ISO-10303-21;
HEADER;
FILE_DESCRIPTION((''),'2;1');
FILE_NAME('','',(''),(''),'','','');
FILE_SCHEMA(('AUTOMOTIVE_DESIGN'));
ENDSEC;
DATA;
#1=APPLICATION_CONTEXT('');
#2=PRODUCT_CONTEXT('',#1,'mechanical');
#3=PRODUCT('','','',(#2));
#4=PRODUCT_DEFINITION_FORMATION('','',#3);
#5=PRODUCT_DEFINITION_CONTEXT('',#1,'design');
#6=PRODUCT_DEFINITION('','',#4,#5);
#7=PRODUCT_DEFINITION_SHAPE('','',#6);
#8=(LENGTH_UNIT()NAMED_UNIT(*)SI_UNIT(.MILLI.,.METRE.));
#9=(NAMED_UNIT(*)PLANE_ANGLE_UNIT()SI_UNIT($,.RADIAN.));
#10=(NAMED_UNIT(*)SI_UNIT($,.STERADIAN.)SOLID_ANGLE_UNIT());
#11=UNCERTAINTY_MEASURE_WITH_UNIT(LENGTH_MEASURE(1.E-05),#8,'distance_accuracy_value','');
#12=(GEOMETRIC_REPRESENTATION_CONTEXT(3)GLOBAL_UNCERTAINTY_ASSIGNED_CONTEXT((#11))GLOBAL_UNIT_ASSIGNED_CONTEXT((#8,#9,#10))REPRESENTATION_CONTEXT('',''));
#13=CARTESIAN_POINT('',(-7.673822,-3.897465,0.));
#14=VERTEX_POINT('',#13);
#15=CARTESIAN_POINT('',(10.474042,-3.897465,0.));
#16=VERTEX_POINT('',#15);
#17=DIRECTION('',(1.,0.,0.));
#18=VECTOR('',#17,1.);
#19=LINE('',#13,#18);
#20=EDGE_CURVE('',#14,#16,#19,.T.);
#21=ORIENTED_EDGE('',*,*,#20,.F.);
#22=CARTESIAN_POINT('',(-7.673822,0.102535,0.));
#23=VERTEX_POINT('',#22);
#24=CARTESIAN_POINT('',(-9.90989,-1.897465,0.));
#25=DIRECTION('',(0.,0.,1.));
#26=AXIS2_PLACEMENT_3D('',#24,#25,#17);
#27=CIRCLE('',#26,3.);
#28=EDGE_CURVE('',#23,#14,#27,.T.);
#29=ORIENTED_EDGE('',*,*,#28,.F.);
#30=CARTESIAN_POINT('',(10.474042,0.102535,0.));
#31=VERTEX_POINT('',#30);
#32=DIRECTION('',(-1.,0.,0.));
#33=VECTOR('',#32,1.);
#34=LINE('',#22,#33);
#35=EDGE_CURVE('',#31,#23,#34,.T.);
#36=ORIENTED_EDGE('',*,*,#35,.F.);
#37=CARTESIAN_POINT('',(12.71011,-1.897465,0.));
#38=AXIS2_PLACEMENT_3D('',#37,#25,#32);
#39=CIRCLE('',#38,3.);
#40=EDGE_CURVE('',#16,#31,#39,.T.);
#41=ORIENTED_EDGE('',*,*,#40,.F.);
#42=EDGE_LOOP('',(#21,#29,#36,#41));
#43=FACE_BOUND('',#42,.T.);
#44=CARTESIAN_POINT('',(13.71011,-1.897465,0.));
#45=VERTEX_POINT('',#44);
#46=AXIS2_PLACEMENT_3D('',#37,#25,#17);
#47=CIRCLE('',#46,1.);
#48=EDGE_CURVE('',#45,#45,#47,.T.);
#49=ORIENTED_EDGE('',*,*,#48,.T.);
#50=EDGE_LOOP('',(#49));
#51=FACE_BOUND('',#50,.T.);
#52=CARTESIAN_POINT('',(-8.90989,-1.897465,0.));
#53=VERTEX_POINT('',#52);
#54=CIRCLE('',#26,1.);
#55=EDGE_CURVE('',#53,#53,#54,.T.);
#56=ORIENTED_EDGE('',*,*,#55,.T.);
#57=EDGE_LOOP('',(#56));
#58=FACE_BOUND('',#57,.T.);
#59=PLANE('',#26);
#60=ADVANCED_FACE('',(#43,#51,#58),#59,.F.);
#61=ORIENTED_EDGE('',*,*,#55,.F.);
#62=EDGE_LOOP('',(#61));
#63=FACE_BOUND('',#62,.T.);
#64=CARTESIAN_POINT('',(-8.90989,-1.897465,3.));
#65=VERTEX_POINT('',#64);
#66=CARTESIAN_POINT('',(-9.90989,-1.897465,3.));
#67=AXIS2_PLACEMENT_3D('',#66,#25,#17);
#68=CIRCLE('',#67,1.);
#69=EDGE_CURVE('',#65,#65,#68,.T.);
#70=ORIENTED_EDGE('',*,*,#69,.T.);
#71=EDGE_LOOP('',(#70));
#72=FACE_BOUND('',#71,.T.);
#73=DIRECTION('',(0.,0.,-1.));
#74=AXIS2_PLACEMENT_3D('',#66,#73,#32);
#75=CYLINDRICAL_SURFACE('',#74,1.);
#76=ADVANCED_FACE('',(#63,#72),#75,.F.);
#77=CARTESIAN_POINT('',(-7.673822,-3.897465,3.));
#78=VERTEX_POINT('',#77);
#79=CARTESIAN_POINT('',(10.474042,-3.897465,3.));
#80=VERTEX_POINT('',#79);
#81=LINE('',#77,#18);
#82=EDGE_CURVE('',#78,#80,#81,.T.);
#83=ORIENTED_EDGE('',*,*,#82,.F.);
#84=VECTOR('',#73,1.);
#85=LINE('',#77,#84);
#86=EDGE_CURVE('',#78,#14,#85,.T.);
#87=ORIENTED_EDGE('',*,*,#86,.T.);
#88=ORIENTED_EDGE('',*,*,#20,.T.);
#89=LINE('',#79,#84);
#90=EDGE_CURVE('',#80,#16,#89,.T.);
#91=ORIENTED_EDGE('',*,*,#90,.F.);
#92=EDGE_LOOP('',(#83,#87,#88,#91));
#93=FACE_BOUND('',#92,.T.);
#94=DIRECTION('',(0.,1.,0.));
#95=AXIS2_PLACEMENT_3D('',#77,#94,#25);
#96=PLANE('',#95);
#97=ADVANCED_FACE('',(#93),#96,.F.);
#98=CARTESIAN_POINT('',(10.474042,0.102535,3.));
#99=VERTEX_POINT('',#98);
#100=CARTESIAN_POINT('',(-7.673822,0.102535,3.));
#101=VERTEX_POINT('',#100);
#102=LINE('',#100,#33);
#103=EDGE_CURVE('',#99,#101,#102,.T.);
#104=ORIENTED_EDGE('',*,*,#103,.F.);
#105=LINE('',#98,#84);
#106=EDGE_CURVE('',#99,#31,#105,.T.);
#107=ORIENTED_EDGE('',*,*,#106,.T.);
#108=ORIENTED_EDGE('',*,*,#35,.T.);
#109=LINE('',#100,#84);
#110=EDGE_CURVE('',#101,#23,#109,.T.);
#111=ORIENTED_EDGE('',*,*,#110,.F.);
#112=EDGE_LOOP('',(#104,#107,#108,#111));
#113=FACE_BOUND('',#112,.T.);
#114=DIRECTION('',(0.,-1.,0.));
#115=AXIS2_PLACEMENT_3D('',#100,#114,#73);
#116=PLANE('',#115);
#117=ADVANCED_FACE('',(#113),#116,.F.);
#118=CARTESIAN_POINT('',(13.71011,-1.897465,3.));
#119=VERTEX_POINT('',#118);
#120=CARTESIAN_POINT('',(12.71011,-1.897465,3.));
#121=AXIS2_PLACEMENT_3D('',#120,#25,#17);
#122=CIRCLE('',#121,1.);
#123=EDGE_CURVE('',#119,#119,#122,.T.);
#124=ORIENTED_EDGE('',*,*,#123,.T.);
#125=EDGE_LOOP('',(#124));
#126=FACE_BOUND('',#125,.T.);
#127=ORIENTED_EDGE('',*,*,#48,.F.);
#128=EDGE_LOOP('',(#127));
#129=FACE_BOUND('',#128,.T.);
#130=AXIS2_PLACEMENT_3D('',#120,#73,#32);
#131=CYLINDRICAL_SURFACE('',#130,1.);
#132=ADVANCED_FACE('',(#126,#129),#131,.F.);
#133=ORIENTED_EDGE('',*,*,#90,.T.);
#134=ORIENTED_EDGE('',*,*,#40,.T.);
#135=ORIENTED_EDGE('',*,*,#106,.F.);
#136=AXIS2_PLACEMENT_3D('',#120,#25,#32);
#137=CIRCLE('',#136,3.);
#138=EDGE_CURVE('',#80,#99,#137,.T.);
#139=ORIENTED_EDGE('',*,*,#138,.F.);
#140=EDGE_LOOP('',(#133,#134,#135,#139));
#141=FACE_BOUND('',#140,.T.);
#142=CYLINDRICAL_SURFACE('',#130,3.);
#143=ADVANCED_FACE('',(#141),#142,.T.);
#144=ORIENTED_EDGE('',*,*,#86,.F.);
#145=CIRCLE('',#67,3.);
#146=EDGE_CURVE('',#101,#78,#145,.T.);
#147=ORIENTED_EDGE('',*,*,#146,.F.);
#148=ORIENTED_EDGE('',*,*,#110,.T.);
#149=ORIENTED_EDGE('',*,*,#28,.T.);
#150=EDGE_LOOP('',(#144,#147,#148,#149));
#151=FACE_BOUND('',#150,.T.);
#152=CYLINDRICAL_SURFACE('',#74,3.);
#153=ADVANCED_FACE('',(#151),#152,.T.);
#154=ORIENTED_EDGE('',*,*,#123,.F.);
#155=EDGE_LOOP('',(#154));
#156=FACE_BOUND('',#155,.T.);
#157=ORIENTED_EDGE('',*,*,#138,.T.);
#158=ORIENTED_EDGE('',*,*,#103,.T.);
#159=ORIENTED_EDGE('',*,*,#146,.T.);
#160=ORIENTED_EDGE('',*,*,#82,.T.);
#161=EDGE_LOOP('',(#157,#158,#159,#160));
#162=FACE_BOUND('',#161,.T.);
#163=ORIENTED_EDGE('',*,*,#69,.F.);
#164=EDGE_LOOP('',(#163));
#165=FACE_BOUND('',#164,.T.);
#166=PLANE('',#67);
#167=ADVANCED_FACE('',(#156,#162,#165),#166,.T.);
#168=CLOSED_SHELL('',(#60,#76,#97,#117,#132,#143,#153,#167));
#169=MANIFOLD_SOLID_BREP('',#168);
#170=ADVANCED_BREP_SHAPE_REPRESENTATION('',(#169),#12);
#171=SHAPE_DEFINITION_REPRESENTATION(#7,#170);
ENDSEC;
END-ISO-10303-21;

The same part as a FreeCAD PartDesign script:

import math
import FreeCAD as App
import Part
import Sketcher
from FreeCAD import Vector
Q = App.Units.Quantity

doc = App.newDocument("Part")
params = doc.addObject("Spreadsheet::Sheet", "Params")
for row, (alias, value) in enumerate([
    ("sketch1_diameter", "2 mm"),
    ("sketch1_radius", "3 mm"),
    ("pad1_length", "3 mm"),
], start=1):
    params.set(f"A{row}", alias)
    params.set(f"B{row}", "=" + value)
    params.setAlias(f"B{row}", alias)

body = doc.addObject("PartDesign::Body", "Body")

sketch1 = body.newObject("Sketcher::SketchObject", "Sketch")
sketch1.AttachmentSupport = (doc.getObject("XY_Plane"), [""])
sketch1.MapMode = "FlatFace"
sketch1.addGeometry(Part.LineSegment(Vector(10.5, 0.1, 0), Vector(-7.7, 0.1, 0)), False)
sketch1.addGeometry(Part.ArcOfCircle(Part.Circle(Vector(-9.9, -1.9, 0), Vector(0, 0, 1), 3), math.radians(42), math.radians(318)), False)
sketch1.addGeometry(Part.LineSegment(Vector(-7.7, -3.9, 0), Vector(10.5, -3.9, 0)), False)
sketch1.addGeometry(Part.ArcOfCircle(Part.Circle(Vector(12.7, -1.9, 0), Vector(0, 0, 1), 3), math.radians(-138), math.radians(138)), False)
sketch1.addGeometry(Part.Circle(Vector(12.7, -1.9, 0), Vector(0, 0, 1), 1), False)
sketch1.addGeometry(Part.Circle(Vector(-9.9, -1.9, 0), Vector(0, 0, 1), 1), False)
sketch1.addConstraint(Sketcher.Constraint("Coincident", 0, 2, 1, 1))
sketch1.addConstraint(Sketcher.Constraint("Coincident", 1, 2, 2, 1))
sketch1.addConstraint(Sketcher.Constraint("Coincident", 2, 2, 3, 1))
sketch1.addConstraint(Sketcher.Constraint("Coincident", 3, 2, 0, 1))
sketch1.addConstraint(Sketcher.Constraint("Horizontal", 0))
sketch1.addConstraint(Sketcher.Constraint("Horizontal", 2))
sketch1.addConstraint(Sketcher.Constraint("Coincident", 4, 3, 3, 3))
sketch1.addConstraint(Sketcher.Constraint("Coincident", 5, 3, 1, 3))
sketch1.addConstraint(Sketcher.Constraint("Equal", 1, 3))
sketch1.addConstraint(Sketcher.Constraint("Equal", 4, 5))
sketch1.addConstraint(Sketcher.Constraint("Horizontal", 1, 3, 3, 3))
sketch1.addConstraint(Sketcher.Constraint("Vertical", 0, 2, 1, 2))
sketch1.addConstraint(Sketcher.Constraint("Diameter", 4, Q("2 mm")))
sketch1.addConstraint(Sketcher.Constraint("Radius", 1, Q("3 mm")))
sketch1.addConstraint(Sketcher.Constraint("DistanceY", 1, 3, 0, 2, Q("2 mm")))
sketch1.addConstraint(Sketcher.Constraint("DistanceX", 1, 3, 3, 3, Q("22.62 mm")))
sketch1.addConstraint(Sketcher.Constraint("DistanceX", 1, 3, -1, 1, Q("9.90989 mm")))
sketch1.addConstraint(Sketcher.Constraint("DistanceY", 1, 3, -1, 1, Q("1.897465 mm")))
sketch1.setExpression("Constraints[12]", "Params.sketch1_diameter")
sketch1.setExpression("Constraints[13]", "Params.sketch1_radius")
pad1 = body.newObject("PartDesign::Pad", "Pad")
pad1.Profile = sketch1
pad1.setExpression("Length", "Params.pad1_length")

doc.recompute()
